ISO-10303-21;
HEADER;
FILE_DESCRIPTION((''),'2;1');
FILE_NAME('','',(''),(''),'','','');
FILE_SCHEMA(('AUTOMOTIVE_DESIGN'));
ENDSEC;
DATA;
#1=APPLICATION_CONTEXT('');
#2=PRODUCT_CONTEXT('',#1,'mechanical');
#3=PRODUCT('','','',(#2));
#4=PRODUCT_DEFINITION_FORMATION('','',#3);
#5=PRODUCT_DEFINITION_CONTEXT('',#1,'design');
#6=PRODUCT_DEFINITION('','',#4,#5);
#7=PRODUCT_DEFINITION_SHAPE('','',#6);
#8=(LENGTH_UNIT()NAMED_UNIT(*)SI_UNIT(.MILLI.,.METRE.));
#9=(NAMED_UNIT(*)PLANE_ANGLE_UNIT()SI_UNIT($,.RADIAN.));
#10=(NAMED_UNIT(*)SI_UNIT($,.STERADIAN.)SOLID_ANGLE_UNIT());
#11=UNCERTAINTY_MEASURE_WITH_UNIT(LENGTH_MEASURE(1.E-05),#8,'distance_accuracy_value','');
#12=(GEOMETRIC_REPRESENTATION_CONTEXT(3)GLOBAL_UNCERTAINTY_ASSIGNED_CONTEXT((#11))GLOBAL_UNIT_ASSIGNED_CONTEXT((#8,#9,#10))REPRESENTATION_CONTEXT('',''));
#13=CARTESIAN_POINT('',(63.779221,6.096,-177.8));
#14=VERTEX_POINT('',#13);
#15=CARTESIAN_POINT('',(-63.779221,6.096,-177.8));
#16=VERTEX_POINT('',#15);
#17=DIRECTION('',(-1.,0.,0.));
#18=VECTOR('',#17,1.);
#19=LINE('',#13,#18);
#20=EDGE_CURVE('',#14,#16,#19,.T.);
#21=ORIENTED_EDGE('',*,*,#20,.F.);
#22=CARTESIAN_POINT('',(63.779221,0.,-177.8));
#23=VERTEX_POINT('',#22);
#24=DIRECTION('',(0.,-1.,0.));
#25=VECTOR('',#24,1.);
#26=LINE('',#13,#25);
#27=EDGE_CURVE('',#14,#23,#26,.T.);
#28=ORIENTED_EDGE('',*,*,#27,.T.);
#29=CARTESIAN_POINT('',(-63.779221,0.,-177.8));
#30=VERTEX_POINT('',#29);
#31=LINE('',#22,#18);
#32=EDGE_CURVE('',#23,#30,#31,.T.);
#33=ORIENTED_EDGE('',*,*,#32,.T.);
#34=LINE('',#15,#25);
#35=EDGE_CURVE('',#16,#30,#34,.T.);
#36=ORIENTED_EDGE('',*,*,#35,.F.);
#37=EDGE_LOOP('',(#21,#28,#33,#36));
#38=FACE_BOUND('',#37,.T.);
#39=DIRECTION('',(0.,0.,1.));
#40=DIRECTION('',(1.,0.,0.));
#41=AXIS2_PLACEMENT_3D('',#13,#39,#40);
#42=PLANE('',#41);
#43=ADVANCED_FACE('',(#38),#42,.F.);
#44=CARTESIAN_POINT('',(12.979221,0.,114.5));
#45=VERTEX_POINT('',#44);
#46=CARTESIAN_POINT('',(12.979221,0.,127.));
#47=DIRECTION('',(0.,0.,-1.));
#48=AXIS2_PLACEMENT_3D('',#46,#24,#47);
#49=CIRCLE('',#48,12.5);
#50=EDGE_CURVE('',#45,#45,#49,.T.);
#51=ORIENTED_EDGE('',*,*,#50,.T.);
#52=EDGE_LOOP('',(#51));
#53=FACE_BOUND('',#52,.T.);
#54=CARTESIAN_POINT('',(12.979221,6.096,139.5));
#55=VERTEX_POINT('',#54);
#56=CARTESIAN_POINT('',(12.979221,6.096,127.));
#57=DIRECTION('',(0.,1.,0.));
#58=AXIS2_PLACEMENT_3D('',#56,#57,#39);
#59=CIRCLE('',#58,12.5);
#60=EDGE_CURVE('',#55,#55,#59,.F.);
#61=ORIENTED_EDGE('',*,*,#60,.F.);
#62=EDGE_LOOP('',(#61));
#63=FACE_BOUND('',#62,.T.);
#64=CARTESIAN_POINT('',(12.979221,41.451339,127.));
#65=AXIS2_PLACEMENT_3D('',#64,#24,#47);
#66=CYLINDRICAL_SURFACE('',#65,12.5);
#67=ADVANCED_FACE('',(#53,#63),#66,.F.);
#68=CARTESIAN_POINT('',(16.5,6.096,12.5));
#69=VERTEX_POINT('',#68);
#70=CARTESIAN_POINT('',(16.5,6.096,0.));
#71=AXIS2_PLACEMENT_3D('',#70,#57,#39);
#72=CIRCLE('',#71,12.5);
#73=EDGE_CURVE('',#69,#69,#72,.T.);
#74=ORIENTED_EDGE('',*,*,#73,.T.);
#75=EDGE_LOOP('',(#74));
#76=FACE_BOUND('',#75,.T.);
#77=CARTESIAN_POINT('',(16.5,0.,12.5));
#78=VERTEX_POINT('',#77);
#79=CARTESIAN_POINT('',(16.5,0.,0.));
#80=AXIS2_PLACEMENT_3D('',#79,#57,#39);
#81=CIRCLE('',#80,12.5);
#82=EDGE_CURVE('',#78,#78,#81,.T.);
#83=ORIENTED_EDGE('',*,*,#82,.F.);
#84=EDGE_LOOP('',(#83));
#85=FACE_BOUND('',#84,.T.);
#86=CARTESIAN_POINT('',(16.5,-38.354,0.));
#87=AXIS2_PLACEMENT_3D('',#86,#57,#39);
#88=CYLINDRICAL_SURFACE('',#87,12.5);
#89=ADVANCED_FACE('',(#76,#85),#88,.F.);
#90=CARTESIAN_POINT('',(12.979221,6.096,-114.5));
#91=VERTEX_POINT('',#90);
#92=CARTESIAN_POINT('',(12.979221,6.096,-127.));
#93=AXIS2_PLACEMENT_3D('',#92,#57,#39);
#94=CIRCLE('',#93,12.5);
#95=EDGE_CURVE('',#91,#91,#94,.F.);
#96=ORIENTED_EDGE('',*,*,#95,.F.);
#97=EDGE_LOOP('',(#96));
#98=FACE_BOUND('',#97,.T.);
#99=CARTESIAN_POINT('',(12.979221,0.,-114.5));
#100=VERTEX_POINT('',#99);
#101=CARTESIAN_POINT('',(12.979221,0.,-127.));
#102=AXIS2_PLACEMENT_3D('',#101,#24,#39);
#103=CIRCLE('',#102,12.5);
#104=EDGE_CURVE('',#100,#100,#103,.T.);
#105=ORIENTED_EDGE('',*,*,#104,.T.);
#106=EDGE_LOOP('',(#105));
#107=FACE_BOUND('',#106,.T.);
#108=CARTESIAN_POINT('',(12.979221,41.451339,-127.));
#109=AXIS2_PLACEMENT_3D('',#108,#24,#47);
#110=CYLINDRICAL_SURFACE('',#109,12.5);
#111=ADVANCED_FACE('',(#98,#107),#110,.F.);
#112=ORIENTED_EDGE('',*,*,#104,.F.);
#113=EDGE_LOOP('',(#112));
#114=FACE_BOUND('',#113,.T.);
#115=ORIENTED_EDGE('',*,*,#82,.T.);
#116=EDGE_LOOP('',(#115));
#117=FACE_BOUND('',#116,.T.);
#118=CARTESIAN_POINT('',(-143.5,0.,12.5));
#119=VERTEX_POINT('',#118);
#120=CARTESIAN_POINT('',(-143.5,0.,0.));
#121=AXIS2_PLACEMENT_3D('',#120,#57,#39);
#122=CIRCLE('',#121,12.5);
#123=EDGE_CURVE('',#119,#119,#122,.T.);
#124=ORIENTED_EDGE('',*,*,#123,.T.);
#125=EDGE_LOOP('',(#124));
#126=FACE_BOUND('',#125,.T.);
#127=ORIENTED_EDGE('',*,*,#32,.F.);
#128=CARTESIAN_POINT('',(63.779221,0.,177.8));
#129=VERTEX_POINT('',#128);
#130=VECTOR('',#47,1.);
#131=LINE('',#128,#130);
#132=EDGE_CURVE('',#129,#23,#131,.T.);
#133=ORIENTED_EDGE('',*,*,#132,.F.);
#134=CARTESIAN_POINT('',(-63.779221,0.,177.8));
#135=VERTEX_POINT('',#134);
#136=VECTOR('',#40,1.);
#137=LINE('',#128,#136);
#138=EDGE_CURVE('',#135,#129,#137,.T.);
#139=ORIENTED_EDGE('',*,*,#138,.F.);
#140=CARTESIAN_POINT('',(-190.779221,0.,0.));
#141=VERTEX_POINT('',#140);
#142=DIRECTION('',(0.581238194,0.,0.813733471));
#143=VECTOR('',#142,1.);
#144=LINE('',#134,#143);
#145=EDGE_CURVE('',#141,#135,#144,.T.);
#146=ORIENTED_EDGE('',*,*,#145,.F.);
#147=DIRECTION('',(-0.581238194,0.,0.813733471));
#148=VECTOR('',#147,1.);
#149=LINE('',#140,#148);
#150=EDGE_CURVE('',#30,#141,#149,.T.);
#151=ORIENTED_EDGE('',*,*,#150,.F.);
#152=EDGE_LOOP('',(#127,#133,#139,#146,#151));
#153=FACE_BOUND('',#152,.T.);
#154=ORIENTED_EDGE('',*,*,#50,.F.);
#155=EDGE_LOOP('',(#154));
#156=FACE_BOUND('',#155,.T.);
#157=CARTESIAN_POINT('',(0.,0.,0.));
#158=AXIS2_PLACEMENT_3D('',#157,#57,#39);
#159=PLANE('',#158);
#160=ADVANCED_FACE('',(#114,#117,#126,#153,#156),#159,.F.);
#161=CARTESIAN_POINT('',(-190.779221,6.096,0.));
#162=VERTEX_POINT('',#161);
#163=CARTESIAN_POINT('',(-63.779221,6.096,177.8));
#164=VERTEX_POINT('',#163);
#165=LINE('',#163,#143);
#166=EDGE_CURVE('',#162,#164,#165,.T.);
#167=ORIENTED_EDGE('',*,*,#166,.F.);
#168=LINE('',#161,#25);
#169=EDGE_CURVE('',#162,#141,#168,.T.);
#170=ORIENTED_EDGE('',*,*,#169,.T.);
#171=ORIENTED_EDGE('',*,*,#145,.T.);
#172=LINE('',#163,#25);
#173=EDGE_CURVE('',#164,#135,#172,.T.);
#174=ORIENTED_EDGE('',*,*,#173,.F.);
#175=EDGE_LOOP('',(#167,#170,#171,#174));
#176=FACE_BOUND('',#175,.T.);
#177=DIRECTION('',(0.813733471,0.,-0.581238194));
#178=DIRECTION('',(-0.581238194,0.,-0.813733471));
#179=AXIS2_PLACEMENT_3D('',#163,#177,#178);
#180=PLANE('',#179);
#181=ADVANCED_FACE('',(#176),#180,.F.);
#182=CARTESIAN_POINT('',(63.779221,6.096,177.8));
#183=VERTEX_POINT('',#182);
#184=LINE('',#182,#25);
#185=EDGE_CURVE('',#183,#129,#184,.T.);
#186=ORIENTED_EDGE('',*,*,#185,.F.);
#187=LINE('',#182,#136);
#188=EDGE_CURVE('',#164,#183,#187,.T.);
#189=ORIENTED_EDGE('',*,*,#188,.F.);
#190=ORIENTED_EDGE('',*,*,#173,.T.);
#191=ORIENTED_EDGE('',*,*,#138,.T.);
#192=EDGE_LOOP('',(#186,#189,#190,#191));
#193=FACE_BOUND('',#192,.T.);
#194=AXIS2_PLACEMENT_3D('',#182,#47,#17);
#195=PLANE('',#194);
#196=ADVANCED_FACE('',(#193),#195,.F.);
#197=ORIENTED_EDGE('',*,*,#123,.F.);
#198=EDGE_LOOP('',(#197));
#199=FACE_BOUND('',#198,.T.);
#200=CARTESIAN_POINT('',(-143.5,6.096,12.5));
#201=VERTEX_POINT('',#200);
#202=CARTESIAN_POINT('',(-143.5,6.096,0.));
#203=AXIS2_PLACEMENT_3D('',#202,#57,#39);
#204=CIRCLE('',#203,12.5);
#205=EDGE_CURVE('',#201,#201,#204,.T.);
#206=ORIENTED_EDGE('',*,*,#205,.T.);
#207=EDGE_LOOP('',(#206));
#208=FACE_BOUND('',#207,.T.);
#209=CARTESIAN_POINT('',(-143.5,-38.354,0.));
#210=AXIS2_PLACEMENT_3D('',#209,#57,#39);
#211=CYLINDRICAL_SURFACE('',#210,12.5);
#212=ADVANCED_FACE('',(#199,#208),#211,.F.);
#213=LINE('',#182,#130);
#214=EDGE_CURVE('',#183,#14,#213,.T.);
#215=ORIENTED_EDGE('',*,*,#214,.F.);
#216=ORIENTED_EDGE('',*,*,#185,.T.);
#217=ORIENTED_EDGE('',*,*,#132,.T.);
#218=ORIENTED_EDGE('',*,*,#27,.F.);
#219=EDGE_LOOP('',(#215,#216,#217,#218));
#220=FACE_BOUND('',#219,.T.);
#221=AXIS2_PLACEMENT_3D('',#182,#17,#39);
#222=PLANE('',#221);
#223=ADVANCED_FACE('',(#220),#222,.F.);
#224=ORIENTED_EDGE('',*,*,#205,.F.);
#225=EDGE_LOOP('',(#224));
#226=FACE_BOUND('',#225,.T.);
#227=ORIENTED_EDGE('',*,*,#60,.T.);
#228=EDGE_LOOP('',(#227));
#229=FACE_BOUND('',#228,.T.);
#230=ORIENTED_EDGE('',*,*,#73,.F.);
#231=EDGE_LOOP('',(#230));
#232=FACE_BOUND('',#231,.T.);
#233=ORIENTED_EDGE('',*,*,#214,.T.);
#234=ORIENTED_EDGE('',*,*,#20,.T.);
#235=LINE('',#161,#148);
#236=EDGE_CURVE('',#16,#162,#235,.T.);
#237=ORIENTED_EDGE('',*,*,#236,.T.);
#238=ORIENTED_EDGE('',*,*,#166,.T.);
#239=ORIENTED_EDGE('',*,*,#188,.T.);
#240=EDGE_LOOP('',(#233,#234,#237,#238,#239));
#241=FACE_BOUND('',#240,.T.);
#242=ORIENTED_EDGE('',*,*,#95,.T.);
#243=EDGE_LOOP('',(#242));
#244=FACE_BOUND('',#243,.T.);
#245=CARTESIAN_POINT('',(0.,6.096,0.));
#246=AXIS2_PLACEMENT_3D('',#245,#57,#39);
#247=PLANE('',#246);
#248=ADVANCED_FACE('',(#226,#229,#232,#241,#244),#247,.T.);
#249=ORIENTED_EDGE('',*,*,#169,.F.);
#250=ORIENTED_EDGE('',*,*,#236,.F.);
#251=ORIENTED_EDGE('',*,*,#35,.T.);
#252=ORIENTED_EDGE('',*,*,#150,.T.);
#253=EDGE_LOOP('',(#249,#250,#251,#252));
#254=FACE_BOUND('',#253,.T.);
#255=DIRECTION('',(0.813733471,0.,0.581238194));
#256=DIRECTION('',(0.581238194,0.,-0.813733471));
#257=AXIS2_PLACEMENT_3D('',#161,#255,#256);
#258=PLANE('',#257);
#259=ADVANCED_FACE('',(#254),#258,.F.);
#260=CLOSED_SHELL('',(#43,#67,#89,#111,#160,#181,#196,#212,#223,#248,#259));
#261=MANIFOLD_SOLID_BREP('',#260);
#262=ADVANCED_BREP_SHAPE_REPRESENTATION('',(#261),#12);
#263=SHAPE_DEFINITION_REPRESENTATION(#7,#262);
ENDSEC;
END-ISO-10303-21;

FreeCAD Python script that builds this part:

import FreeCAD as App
import Part
import Sketcher

V = App.Vector
Q = App.Units.Quantity

doc = App.newDocument("Part")
body = doc.addObject("PartDesign::Body", "Body")

sketch1 = body.newObject("Sketcher::SketchObject", "Sketch")
sketch1.AttachmentSupport = (doc.getObject("XZ_Plane"), [""])
sketch1.MapMode = "FlatFace"
sketch1.addGeometry([
    Part.LineSegment(V(-191, 0, 0), V(-64, 178, 0)),
    Part.LineSegment(V(-64, 178, 0), V(64, 178, 0)),
    Part.LineSegment(V(64, 178, 0), V(64, -178, 0)),
    Part.LineSegment(V(64, -178, 0), V(-64, -178, 0)),
    Part.LineSegment(V(-64, -178, 0), V(-191, 0, 0)),
], False)
sketch1.addConstraint([
    Sketcher.Constraint("Coincident", 0, 2, 1, 1),
    Sketcher.Constraint("Coincident", 1, 2, 2, 1),
    Sketcher.Constraint("Coincident", 2, 2, 3, 1),
    Sketcher.Constraint("Coincident", 3, 2, 4, 1),
    Sketcher.Constraint("Coincident", 4, 2, 0, 1),
    Sketcher.Constraint("Horizontal", 1),
    Sketcher.Constraint("Vertical", 2),
    Sketcher.Constraint("Horizontal", 3),
    Sketcher.Constraint("Symmetric", 0, 2, 2, 2, -1, 1),
    Sketcher.Constraint("PointOnObject", 4, 2, -1),
    Sketcher.Constraint("Vertical", 0, 2, 3, 2),
    Sketcher.Constraint("DistanceY", 2, 2, 2, 1, Q("14 in")),
    Sketcher.Constraint("DistanceX", 4, 2, 0, 2, Q("5 in")),
    Sketcher.Constraint("DistanceX", 1, 1, 1, 2, 127.558441),
])
pad1 = body.newObject("PartDesign::Pad", "Pad")
pad1.Profile = sketch1
pad1.Length = Q("0.24 in")
pad1.Reversed = True

sketch2 = body.newObject("Sketcher::SketchObject", "Sketch001")
sketch2.AttachmentSupport = (doc.getObject("XZ_Plane"), [""])
sketch2.MapMode = "FlatFace"
sketch2.AttachmentOffset = App.Placement(V(0, 0, -0.24 * 25.4), App.Rotation())
sketch2.addGeometry([
    Part.Circle(V(-144, 0, 0), V(0, 0, 1), 12),
    Part.Circle(V(16, 0, 0), V(0, 0, 1), 12),
], False)
sketch2.addConstraint([
    Sketcher.Constraint("Equal", 0, 1),
    Sketcher.Constraint("PointOnObject", 0, 3, -1),
    Sketcher.Constraint("PointOnObject", 1, 3, -1),
    Sketcher.Constraint("Diameter", 0, 25.0),
    Sketcher.Constraint("DistanceX", 0, 3, -1, 1, 143.5),
    Sketcher.Constraint("DistanceX", -1, 1, 1, 3, 16.5),
])
pocket1 = body.newObject("PartDesign::Pocket", "Pocket")
pocket1.Profile = sketch2
pocket1.Length = Q("1.75 in")
pocket1.Reversed = True

sketch3 = body.newObject("Sketcher::SketchObject", "Sketch002")
sketch3.AttachmentSupport = (doc.getObject("XZ_Plane"), [""])
sketch3.MapMode = "FlatFace"
sketch3.addGeometry([
    Part.Circle(V(13, 127, 0), V(0, 0, 1), 12),
    Part.Circle(V(13, -127, 0), V(0, 0, 1), 12),
], False)
sketch3.addConstraint([
    Sketcher.Constraint("Equal", 0, 1),
    Sketcher.Constraint("Symmetric", 0, 3, 1, 3, -1),
    Sketcher.Constraint("DistanceY", -1, 1, 0, 3, Q("5 in")),
    Sketcher.Constraint("Diameter", 0, 25.0),
    Sketcher.Constraint("DistanceX", -1, 1, 0, 3, 12.979221),
])
pocket2 = body.newObject("PartDesign::Pocket", "Pocket001")
pocket2.Profile = sketch3
pocket2.Length = Q("0.24 in")

doc.recompute()
